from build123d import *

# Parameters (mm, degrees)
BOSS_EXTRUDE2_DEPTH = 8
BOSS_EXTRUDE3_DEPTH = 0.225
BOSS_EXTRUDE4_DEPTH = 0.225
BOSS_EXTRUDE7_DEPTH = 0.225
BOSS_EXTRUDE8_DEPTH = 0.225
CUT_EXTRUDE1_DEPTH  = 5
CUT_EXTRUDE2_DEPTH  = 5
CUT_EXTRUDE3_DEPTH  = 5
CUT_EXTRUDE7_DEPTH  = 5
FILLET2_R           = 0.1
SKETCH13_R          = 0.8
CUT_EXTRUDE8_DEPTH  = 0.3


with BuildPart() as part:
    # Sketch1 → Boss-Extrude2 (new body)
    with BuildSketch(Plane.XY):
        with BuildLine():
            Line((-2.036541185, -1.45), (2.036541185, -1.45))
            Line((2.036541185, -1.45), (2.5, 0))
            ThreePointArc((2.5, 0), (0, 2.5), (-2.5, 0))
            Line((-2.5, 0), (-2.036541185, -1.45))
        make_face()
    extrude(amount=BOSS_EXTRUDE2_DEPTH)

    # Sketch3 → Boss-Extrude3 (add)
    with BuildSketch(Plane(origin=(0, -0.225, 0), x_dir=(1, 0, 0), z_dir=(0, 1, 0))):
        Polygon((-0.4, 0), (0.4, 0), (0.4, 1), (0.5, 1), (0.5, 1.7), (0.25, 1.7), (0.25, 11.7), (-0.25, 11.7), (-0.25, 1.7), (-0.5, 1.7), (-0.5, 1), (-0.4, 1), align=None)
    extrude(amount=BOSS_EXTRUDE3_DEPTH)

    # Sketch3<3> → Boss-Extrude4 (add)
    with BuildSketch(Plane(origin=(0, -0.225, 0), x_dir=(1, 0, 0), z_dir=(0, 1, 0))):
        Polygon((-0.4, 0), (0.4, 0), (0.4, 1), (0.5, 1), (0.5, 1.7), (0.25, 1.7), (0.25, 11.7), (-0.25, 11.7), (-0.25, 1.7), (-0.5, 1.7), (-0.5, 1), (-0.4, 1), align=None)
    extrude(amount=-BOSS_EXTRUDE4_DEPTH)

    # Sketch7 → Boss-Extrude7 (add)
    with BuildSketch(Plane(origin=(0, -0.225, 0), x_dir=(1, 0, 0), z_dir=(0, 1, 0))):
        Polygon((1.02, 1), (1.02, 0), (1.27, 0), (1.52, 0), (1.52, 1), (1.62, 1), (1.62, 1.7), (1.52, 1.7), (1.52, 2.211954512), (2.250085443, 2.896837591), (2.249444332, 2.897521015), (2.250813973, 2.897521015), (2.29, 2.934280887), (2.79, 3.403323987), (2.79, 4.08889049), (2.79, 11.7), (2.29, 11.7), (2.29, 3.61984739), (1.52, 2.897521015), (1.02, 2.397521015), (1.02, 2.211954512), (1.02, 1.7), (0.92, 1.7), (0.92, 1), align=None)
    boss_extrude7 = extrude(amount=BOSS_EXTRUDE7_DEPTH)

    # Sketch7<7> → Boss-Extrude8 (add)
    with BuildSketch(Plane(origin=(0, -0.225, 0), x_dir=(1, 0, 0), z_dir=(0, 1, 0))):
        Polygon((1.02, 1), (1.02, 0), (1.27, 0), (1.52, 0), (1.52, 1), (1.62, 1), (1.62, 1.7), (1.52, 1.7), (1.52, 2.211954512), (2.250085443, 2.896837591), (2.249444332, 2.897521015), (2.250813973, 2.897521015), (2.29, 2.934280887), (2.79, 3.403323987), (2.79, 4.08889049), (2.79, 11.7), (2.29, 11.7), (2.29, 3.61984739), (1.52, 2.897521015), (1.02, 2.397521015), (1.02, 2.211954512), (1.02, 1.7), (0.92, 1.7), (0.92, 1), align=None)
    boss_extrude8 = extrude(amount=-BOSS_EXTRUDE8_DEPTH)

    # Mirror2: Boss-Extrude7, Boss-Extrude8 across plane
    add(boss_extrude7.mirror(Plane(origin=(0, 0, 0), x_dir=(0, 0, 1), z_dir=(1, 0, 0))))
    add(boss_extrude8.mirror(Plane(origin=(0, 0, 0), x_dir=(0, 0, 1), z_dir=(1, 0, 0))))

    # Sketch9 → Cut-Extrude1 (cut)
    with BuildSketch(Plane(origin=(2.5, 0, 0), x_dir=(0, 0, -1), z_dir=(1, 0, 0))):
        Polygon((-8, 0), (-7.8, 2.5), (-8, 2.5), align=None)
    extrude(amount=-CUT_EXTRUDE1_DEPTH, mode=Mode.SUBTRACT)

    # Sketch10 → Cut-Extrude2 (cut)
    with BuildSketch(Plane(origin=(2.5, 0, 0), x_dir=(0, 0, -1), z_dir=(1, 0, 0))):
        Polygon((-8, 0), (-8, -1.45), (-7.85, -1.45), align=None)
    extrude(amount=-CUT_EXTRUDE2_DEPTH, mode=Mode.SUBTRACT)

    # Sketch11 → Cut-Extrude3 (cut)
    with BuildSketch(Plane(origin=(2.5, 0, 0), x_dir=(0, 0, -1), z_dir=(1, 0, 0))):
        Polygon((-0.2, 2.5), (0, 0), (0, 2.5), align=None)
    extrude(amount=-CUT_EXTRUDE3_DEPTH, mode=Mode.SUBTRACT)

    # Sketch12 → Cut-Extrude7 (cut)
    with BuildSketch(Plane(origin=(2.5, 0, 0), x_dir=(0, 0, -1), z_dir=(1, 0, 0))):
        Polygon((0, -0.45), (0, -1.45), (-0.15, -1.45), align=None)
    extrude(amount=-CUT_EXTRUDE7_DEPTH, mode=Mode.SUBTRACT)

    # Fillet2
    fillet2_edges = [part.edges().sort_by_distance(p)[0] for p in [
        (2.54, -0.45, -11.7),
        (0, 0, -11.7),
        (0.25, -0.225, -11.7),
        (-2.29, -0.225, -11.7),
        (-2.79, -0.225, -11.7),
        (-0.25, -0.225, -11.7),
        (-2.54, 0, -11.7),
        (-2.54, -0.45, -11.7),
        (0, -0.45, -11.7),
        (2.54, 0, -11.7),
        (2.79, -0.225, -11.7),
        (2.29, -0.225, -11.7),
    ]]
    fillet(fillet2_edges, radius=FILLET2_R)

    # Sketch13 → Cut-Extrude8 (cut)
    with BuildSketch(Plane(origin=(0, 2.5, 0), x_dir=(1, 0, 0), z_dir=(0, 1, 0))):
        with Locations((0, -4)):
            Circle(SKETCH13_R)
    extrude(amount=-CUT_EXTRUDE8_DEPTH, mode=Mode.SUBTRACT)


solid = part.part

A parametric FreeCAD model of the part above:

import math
import FreeCAD as App
import Part
import Sketcher

V = App.Vector
Q = App.Units.Quantity


def edges_at(feature, points):
    """Names of the edges that pass closest to the given points."""
    edges = feature.Shape.Edges
    near = lambda p: min(range(len(edges)), key=lambda i: edges[i].distToShape(Part.Vertex(*p))[0])
    return sorted({f"Edge{near(p) + 1}" for p in points})


def add_polygon(sketch, points):
    """Adds a closed chain of lines whose ends are joined by coincident constraints."""
    first, n = sketch.GeometryCount, len(points)
    for a, b in zip(points, points[1:] + points[:1]):
        sketch.addGeometry(Part.LineSegment(App.Vector(*a, 0), App.Vector(*b, 0)), False)
    for i in range(n):
        sketch.addConstraint(Sketcher.Constraint("Coincident", first + i, 2, first + (i + 1) % n, 1))

doc = App.newDocument("Part")
params = doc.addObject("Spreadsheet::Sheet", "Params")
for row, (alias, value) in enumerate([
    ("sketch1_radius", "2.5 mm"),
    ("pad1_length", "8 mm"),
    ("sketch2_height", "1 mm"),
    ("sketch2_height2", "10 mm"),
    ("sketch2_width", "0.8 mm"),
    ("sketch2_width2", "0.1 mm"),
    ("sketch2_width3", "0.5 mm"),
    ("pad2_length", "0.225 mm"),
    ("sketch3_height", "1 mm"),
    ("sketch3_height2", "10 mm"),
    ("sketch3_width", "0.8 mm"),
    ("sketch3_width2", "0.1 mm"),
    ("sketch3_width3", "0.5 mm"),
    ("pad3_length", "0.225 mm"),
    ("sketch4_height", "1 mm"),
    ("sketch4_width", "0.5 mm"),
    ("sketch4_width2", "0.1 mm"),
    ("sketch4_height2", "0.7 mm"),
    ("pad4_length", "0.225 mm"),
    ("sketch5_height", "1 mm"),
    ("sketch5_width", "0.5 mm"),
    ("sketch5_width2", "0.1 mm"),
    ("sketch5_height2", "0.7 mm"),
    ("pad5_length", "0.225 mm"),
    ("sketch6_width", "2.5 mm"),
    ("sketch6_height", "0.2 mm"),
    ("pocket1_length", "5 mm"),
    ("sketch7_width", "1.45 mm"),
    ("sketch7_height", "0.15 mm"),
    ("pocket2_length", "5 mm"),
    ("sketch8_width", "2.5 mm"),
    ("sketch8_height", "0.2 mm"),
    ("pocket3_length", "5 mm"),
    ("sketch9_width", "1 mm"),
    ("sketch9_height", "0.15 mm"),
    ("pocket4_length", "5 mm"),
    ("fillet_radius", "0.1 mm"),
    ("sketch10_diameter", "1.6 mm"),
    ("pocket5_length", "0.3 mm"),
], start=1):
    params.set(f"A{row}", alias)
    params.set(f"B{row}", "=" + value)
    params.setAlias(f"B{row}", alias)

body = doc.addObject("PartDesign::Body", "Body")

sketch1 = body.newObject("Sketcher::SketchObject", "Sketch")
sketch1.AttachmentSupport = (doc.getObject("XY_Plane"), [""])
sketch1.MapMode = "FlatFace"
sketch1.addGeometry([
    Part.LineSegment(V(-2.036541, -1.45, 0), V(2.036541, -1.45, 0)),
    Part.LineSegment(V(2.036541, -1.45, 0), V(2.5, 0, 0)),
    Part.ArcOfCircle(Part.Circle(V(0, 0, 0), V(0, 0, 1), 2.5), math.radians(0), math.radians(180)),
    Part.LineSegment(V(-2.5, 0, 0), V(-2.036541, -1.45, 0)),
], False)
sketch1.addConstraint([
    Sketcher.Constraint("Coincident", 0, 2, 1, 1),
    Sketcher.Constraint("Coincident", 1, 2, 2, 1),
    Sketcher.Constraint("Coincident", 2, 2, 3, 1),
    Sketcher.Constraint("Coincident", 3, 2, 0, 1),
    Sketcher.Constraint("Horizontal", 0),
    Sketcher.Constraint("Coincident", 2, 3, -1, 1),
    Sketcher.Constraint("PointOnObject", 1, 2, -1),
    Sketcher.Constraint("PointOnObject", 2, 2, -1),
    Sketcher.Constraint("Equal", 1, 3),
    Sketcher.Constraint("Radius", 2, Q("2.5 mm")),
    Sketcher.Constraint("DistanceY", 0, 2, -1, 1, Q("1.45 mm")),
    Sketcher.Constraint("DistanceX", 0, 1, 0, 2, Q("4.073082 mm")),
])
sketch1.setExpression("Constraints[9]", "Params.sketch1_radius")
pad1 = body.newObject("PartDesign::Pad", "Pad")
pad1.Profile = sketch1
pad1.setExpression("Length", "Params.pad1_length")

sketch2 = body.newObject("Sketcher::SketchObject", "Sketch001")
sketch2.AttachmentSupport = (doc.getObject("XZ_Plane"), [""])
sketch2.MapMode = "FlatFace"
sketch2.AttachmentOffset = App.Placement(V(0, 0, 0.225), App.Rotation())
add_polygon(sketch2, [(-0.4, 0), (0.4, 0), (0.4, -1), (0.5, -1), (0.5, -1.7), (0.25, -1.7), (0.25, -11.7), (-0.25, -11.7), (-0.25, -1.7), (-0.5, -1.7), (-0.5, -1), (-0.4, -1)])
sketch2.addConstraint([
    Sketcher.Constraint("Horizontal", 0),
    Sketcher.Constraint("Vertical", 1),
    Sketcher.Constraint("Horizontal", 2),
    Sketcher.Constraint("Vertical", 3),
    Sketcher.Constraint("Horizontal", 4),
    Sketcher.Constraint("Vertical", 5),
    Sketcher.Constraint("Horizontal", 6),
    Sketcher.Constraint("Vertical", 7),
    Sketcher.Constraint("Horizontal", 8),
    Sketcher.Constraint("Vertical", 9),
    Sketcher.Constraint("Horizontal", 10),
    Sketcher.Constraint("Vertical", 11),
    Sketcher.Constraint("Symmetric", 0, 2, 11, 2, -1, 1),
    Sketcher.Constraint("Symmetric", 4, 2, 7, 2, -2),
    Sketcher.Constraint("Symmetric", 2, 2, 9, 2, -2),
    Sketcher.Constraint("DistanceY", 1, 2, 1, 1, Q("1 mm")),
    Sketcher.Constraint("DistanceY", 5, 2, 5, 1, Q("10 mm")),
    Sketcher.Constraint("DistanceX", 0, 1, 0, 2, Q("0.8 mm")),
    Sketcher.Constraint("DistanceX", 2, 1, 2, 2, Q("0.1 mm")),
    Sketcher.Constraint("DistanceX", 6, 2, 6, 1, Q("0.5 mm")),
    Sketcher.Constraint("DistanceY", 3, 2, 3, 1, Q("0.7 mm")),
])
sketch2.setExpression("Constraints[27]", "Params.sketch2_height")
sketch2.setExpression("Constraints[28]", "Params.sketch2_height2")
sketch2.setExpression("Constraints[29]", "Params.sketch2_width")
sketch2.setExpression("Constraints[30]", "Params.sketch2_width2")
sketch2.setExpression("Constraints[31]", "Params.sketch2_width3")
pad2 = body.newObject("PartDesign::Pad", "Pad001")
pad2.Profile = sketch2
pad2.setExpression("Length", "Params.pad2_length")
pad2.Reversed = True

sketch3 = body.newObject("Sketcher::SketchObject", "Sketch002")
sketch3.AttachmentSupport = (doc.getObject("XZ_Plane"), [""])
sketch3.MapMode = "FlatFace"
sketch3.AttachmentOffset = App.Placement(V(0, 0, 0.225), App.Rotation())
add_polygon(sketch3, [(-0.4, 0), (0.4, 0), (0.4, -1), (0.5, -1), (0.5, -1.7), (0.25, -1.7), (0.25, -11.7), (-0.25, -11.7), (-0.25, -1.7), (-0.5, -1.7), (-0.5, -1), (-0.4, -1)])
sketch3.addConstraint([
    Sketcher.Constraint("Horizontal", 0),
    Sketcher.Constraint("Vertical", 1),
    Sketcher.Constraint("Horizontal", 2),
    Sketcher.Constraint("Vertical", 3),
    Sketcher.Constraint("Horizontal", 4),
    Sketcher.Constraint("Vertical", 5),
    Sketcher.Constraint("Horizontal", 6),
    Sketcher.Constraint("Vertical", 7),
    Sketcher.Constraint("Horizontal", 8),
    Sketcher.Constraint("Vertical", 9),
    Sketcher.Constraint("Horizontal", 10),
    Sketcher.Constraint("Vertical", 11),
    Sketcher.Constraint("Symmetric", 0, 2, 11, 2, -1, 1),
    Sketcher.Constraint("Symmetric", 4, 2, 7, 2, -2),
    Sketcher.Constraint("Symmetric", 2, 2, 9, 2, -2),
    Sketcher.Constraint("DistanceY", 1, 2, 1, 1, Q("1 mm")),
    Sketcher.Constraint("DistanceY", 5, 2, 5, 1, Q("10 mm")),
    Sketcher.Constraint("DistanceX", 0, 1, 0, 2, Q("0.8 mm")),
    Sketcher.Constraint("DistanceX", 2, 1, 2, 2, Q("0.1 mm")),
    Sketcher.Constraint("DistanceX", 6, 2, 6, 1, Q("0.5 mm")),
    Sketcher.Constraint("DistanceY", 3, 2, 3, 1, Q("0.7 mm")),
])
sketch3.setExpression("Constraints[27]", "Params.sketch3_height")
sketch3.setExpression("Constraints[28]", "Params.sketch3_height2")
sketch3.setExpression("Constraints[29]", "Params.sketch3_width")
sketch3.setExpression("Constraints[30]", "Params.sketch3_width2")
sketch3.setExpression("Constraints[31]", "Params.sketch3_width3")
pad3 = body.newObject("PartDesign::Pad", "Pad002")
pad3.Profile = sketch3
pad3.setExpression("Length", "Params.pad3_length")

sketch4 = body.newObject("Sketcher::SketchObject", "Sketch003")
sketch4.AttachmentSupport = (doc.getObject("XZ_Plane"), [""])
sketch4.MapMode = "FlatFace"
sketch4.AttachmentOffset = App.Placement(V(0, 0, 0.225), App.Rotation())
add_polygon(sketch4, [(1.02, -1), (1.02, 0), (1.52, 0), (1.52, -1), (1.62, -1), (1.62, -1.7), (1.52, -1.7), (1.52, -2.211955), (2.250085, -2.896838), (2.249444, -2.897521), (2.250814, -2.897521), (2.29, -2.934281), (2.79, -3.403324), (2.79, -11.7), (2.29, -11.7), (2.29, -3.619847), (1.52, -2.897521), (1.02, -2.397521), (1.02, -1.7), (0.92, -1.7), (0.92, -1)])
sketch4.addConstraint([
    Sketcher.Constraint("Vertical", 0),
    Sketcher.Constraint("Horizontal", 1),
    Sketcher.Constraint("Vertical", 2),
    Sketcher.Constraint("Horizontal", 3),
    Sketcher.Constraint("Vertical", 4),
    Sketcher.Constraint("Horizontal", 5),
    Sketcher.Constraint("Vertical", 6),
    Sketcher.Constraint("Horizontal", 9),
    Sketcher.Constraint("Vertical", 12),
    Sketcher.Constraint("Horizontal", 13),
    Sketcher.Constraint("Vertical", 14),
    Sketcher.Constraint("Vertical", 17),
    Sketcher.Constraint("Horizontal", 18),
    Sketcher.Constraint("Vertical", 19),
    Sketcher.Constraint("Horizontal", 20),
    Sketcher.Constraint("PointOnObject", 0, 2, -1),
    Sketcher.Constraint("Perpendicular", 7, 8),
    Sketcher.Constraint("Perpendicular", 8, 10),
    Sketcher.Constraint("Parallel", 10, 11),
    Sketcher.Constraint("Parallel", 11, 15),
    Sketcher.Constraint("Horizontal", 9, 2, 15, 2),
    Sketcher.Constraint("Horizontal", 5, 2, 17, 2),
    Sketcher.Constraint("Horizontal", 3, 2, 19, 2),
    Sketcher.Constraint("Vertical", 2, 2, 5, 2),
    Sketcher.Constraint("Vertical", 10, 2, 13, 2),
    Sketcher.Constraint("Vertical", 6, 2, 15, 2),
    Sketcher.Constraint("Vertical", 0, 2, 16, 2),
    Sketcher.Constraint("Equal", 1, 13),
    Sketcher.Constraint("Equal", 5, 18),
    Sketcher.Constraint("DistanceY", 0, 1, 0, 2, Q("1 mm")),
    Sketcher.Constraint("Angle", 16, Q("135 deg")),
    Sketcher.Constraint("DistanceX", 1, 1, 1, 2, Q("0.5 mm")),
    Sketcher.Constraint("DistanceX", 3, 1, 3, 2, Q("0.1 mm")),
    Sketcher.Constraint("DistanceY", 4, 2, 4, 1, Q("0.7 mm")),
    Sketcher.Constraint("DistanceY", 12, 2, -1, 1, Q("11.7 mm")),
    Sketcher.Constraint("DistanceX", -1, 1, 0, 2, Q("1.02 mm")),
    Sketcher.Constraint("DistanceX", -1, 1, 10, 2, Q("2.29 mm")),
    Sketcher.Constraint("DistanceX", 9, 1, 9, 2, Q("0.00137 mm")),
    Sketcher.Constraint("DistanceY", 17, 1, 17, 2, Q("0.697521 mm")),
    Sketcher.Constraint("Distance", 10, Q("0.053729 mm")),
    Sketcher.Constraint("DistanceY", 6, 2, 6, 1, Q("0.511955 mm")),
    Sketcher.Constraint("DistanceY", 12, 2, 12, 1, Q("8.296676 mm")),
])
sketch4.setExpression("Constraints[50]", "Params.sketch4_height")
sketch4.setExpression("Constraints[52]", "Params.sketch4_width")
sketch4.setExpression("Constraints[53]", "Params.sketch4_width2")
sketch4.setExpression("Constraints[54]", "Params.sketch4_height2")
pad4 = body.newObject("PartDesign::Pad", "Pad003")
pad4.Profile = sketch4
pad4.setExpression("Length", "Params.pad4_length")
pad4.Reversed = True

sketch5 = body.newObject("Sketcher::SketchObject", "Sketch004")
sketch5.AttachmentSupport = (doc.getObject("XZ_Plane"), [""])
sketch5.MapMode = "FlatFace"
sketch5.AttachmentOffset = App.Placement(V(0, 0, 0.225), App.Rotation())
add_polygon(sketch5, [(1.02, -1), (1.02, 0), (1.52, 0), (1.52, -1), (1.62, -1), (1.62, -1.7), (1.52, -1.7), (1.52, -2.211955), (2.250085, -2.896838), (2.249444, -2.897521), (2.250814, -2.897521), (2.29, -2.934281), (2.79, -3.403324), (2.79, -11.7), (2.29, -11.7), (2.29, -3.619847), (1.52, -2.897521), (1.02, -2.397521), (1.02, -1.7), (0.92, -1.7), (0.92, -1)])
sketch5.addConstraint([
    Sketcher.Constraint("Vertical", 0),
    Sketcher.Constraint("Horizontal", 1),
    Sketcher.Constraint("Vertical", 2),
    Sketcher.Constraint("Horizontal", 3),
    Sketcher.Constraint("Vertical", 4),
    Sketcher.Constraint("Horizontal", 5),
    Sketcher.Constraint("Vertical", 6),
    Sketcher.Constraint("Horizontal", 9),
    Sketcher.Constraint("Vertical", 12),
    Sketcher.Constraint("Horizontal", 13),
    Sketcher.Constraint("Vertical", 14),
    Sketcher.Constraint("Vertical", 17),
    Sketcher.Constraint("Horizontal", 18),
    Sketcher.Constraint("Vertical", 19),
    Sketcher.Constraint("Horizontal", 20),
    Sketcher.Constraint("PointOnObject", 0, 2, -1),
    Sketcher.Constraint("Perpendicular", 7, 8),
    Sketcher.Constraint("Perpendicular", 8, 10),
    Sketcher.Constraint("Parallel", 10, 11),
    Sketcher.Constraint("Parallel", 11, 15),
    Sketcher.Constraint("Horizontal", 9, 2, 15, 2),
    Sketcher.Constraint("Horizontal", 5, 2, 17, 2),
    Sketcher.Constraint("Horizontal", 3, 2, 19, 2),
    Sketcher.Constraint("Vertical", 2, 2, 5, 2),
    Sketcher.Constraint("Vertical", 10, 2, 13, 2),
    Sketcher.Constraint("Vertical", 6, 2, 15, 2),
    Sketcher.Constraint("Vertical", 0, 2, 16, 2),
    Sketcher.Constraint("Equal", 1, 13),
    Sketcher.Constraint("Equal", 5, 18),
    Sketcher.Constraint("DistanceY", 0, 1, 0, 2, Q("1 mm")),
    Sketcher.Constraint("Angle", 16, Q("135 deg")),
    Sketcher.Constraint("DistanceX", 1, 1, 1, 2, Q("0.5 mm")),
    Sketcher.Constraint("DistanceX", 3, 1, 3, 2, Q("0.1 mm")),
    Sketcher.Constraint("DistanceY", 4, 2, 4, 1, Q("0.7 mm")),
    Sketcher.Constraint("DistanceY", 12, 2, -1, 1, Q("11.7 mm")),
    Sketcher.Constraint("DistanceX", -1, 1, 0, 2, Q("1.02 mm")),
    Sketcher.Constraint("DistanceX", -1, 1, 10, 2, Q("2.29 mm")),
    Sketcher.Constraint("DistanceX", 9, 1, 9, 2, Q("0.00137 mm")),
    Sketcher.Constraint("DistanceY", 17, 1, 17, 2, Q("0.697521 mm")),
    Sketcher.Constraint("Distance", 10, Q("0.053729 mm")),
    Sketcher.Constraint("DistanceY", 6, 2, 6, 1, Q("0.511955 mm")),
    Sketcher.Constraint("DistanceY", 12, 2, 12, 1, Q("8.296676 mm")),
])
sketch5.setExpression("Constraints[50]", "Params.sketch5_height")
sketch5.setExpression("Constraints[52]", "Params.sketch5_width")
sketch5.setExpression("Constraints[53]", "Params.sketch5_width2")
sketch5.setExpression("Constraints[54]", "Params.sketch5_height2")
pad5 = body.newObject("PartDesign::Pad", "Pad004")
pad5.Profile = sketch5
pad5.setExpression("Length", "Params.pad5_length")
doc.recompute()

mirrored = body.newObject("PartDesign::Mirrored", "Mirrored")
mirrored.Originals = [pad4, pad5]
mirrored.MirrorPlane = (doc.getObject("YZ_Plane"), [""])
body.Tip = mirrored

sketch6 = body.newObject("Sketcher::SketchObject", "Sketch005")
sketch6.AttachmentSupport = (doc.getObject("YZ_Plane"), [""])
sketch6.MapMode = "FlatFace"
sketch6.AttachmentOffset = App.Placement(V(0, 0, 2.5), App.Rotation())
add_polygon(sketch6, [(0, 8), (2.5, 7.8), (2.5, 8)])
sketch6.addConstraint([
    Sketcher.Constraint("Vertical", 1),
    Sketcher.Constraint("Horizontal", 2),
    Sketcher.Constraint("PointOnObject", 2, 2, -2),
    Sketcher.Constraint("DistanceX", 2, 2, 2, 1, Q("2.5 mm")),
    Sketcher.Constraint("DistanceY", 1, 1, 1, 2, Q("0.2 mm")),
    Sketcher.Constraint("DistanceY", -1, 1, 1, 2, Q("8 mm")),
])
sketch6.setExpression("Constraints[6]", "Params.sketch6_width")
sketch6.setExpression("Constraints[7]", "Params.sketch6_height")
pocket1 = body.newObject("PartDesign::Pocket", "Pocket")
pocket1.Profile = sketch6
pocket1.setExpression("Length", "Params.pocket1_length")

sketch7 = body.newObject("Sketcher::SketchObject", "Sketch006")
sketch7.AttachmentSupport = (doc.getObject("YZ_Plane"), [""])
sketch7.MapMode = "FlatFace"
sketch7.AttachmentOffset = App.Placement(V(0, 0, 2.5), App.Rotation())
add_polygon(sketch7, [(0, 8), (-1.45, 8), (-1.45, 7.85)])
sketch7.addConstraint([
    Sketcher.Constraint("Horizontal", 0),
    Sketcher.Constraint("Vertical", 1),
    Sketcher.Constraint("PointOnObject", 2, 2, -2),
    Sketcher.Constraint("DistanceY", -1, 1, 0, 2, Q("8 mm")),
    Sketcher.Constraint("DistanceX", 0, 2, 0, 1, Q("1.45 mm")),
    Sketcher.Constraint("DistanceY", 1, 2, 1, 1, Q("0.15 mm")),
])
sketch7.setExpression("Constraints[7]", "Params.sketch7_width")
sketch7.setExpression("Constraints[8]", "Params.sketch7_height")
pocket2 = body.newObject("PartDesign::Pocket", "Pocket001")
pocket2.Profile = sketch7
pocket2.setExpression("Length", "Params.pocket2_length")

sketch8 = body.newObject("Sketcher::SketchObject", "Sketch007")
sketch8.AttachmentSupport = (doc.getObject("YZ_Plane"), [""])
sketch8.MapMode = "FlatFace"
sketch8.AttachmentOffset = App.Placement(V(0, 0, 2.5), App.Rotation())
add_polygon(sketch8, [(2.5, 0.2), (0, 0), (2.5, 0)])
sketch8.addConstraint([
    Sketcher.Constraint("Horizontal", 1),
    Sketcher.Constraint("Vertical", 2),
    Sketcher.Constraint("Coincident", 0, 2, -1, 1),
    Sketcher.Constraint("DistanceX", 1, 1, 1, 2, Q("2.5 mm")),
    Sketcher.Constraint("DistanceY", 2, 1, 2, 2, Q("0.2 mm")),
])
sketch8.setExpression("Constraints[6]", "Params.sketch8_width")
sketch8.setExpression("Constraints[7]", "Params.sketch8_height")
pocket3 = body.newObject("PartDesign::Pocket", "Pocket002")
pocket3.Profile = sketch8
pocket3.setExpression("Length", "Params.pocket3_length")

sketch9 = body.newObject("Sketcher::SketchObject", "Sketch008")
sketch9.AttachmentSupport = (doc.getObject("YZ_Plane"), [""])
sketch9.MapMode = "FlatFace"
sketch9.AttachmentOffset = App.Placement(V(0, 0, 2.5), App.Rotation())
add_polygon(sketch9, [(-1.45, 0), (-0.45, 0), (-1.45, 0.15)])
sketch9.addConstraint([
    Sketcher.Constraint("Horizontal", 0),
    Sketcher.Constraint("Vertical", 2),
    Sketcher.Constraint("PointOnObject", 0, 2, -1),
    Sketcher.Constraint("DistanceX", 0, 1, 0, 2, Q("1 mm")),
    Sketcher.Constraint("DistanceY", 2, 2, 2, 1, Q("0.15 mm")),
    Sketcher.Constraint("DistanceX", 0, 2, -1, 1, Q("0.45 mm")),
])
sketch9.setExpression("Constraints[6]", "Params.sketch9_width")
sketch9.setExpression("Constraints[7]", "Params.sketch9_height")
pocket4 = body.newObject("PartDesign::Pocket", "Pocket003")
pocket4.Profile = sketch9
pocket4.setExpression("Length", "Params.pocket4_length")
doc.recompute()

fillet = body.newObject("PartDesign::Fillet", "Fillet")
fillet.Base = (pocket4, edges_at(pocket4, [
    (2.54, -0.45, -11.7),
    (0, 0, -11.7),
    (0.25, -0.225, -11.7),
    (-2.29, -0.225, -11.7),
    (-2.79, -0.225, -11.7),
    (-0.25, -0.225, -11.7),
    (-2.54, 0, -11.7),
    (-2.54, -0.45, -11.7),
    (0, -0.45, -11.7),
    (2.54, 0, -11.7),
    (2.79, -0.225, -11.7),
    (2.29, -0.225, -11.7),
]))
fillet.setExpression("Radius", "Params.fillet_radius")

sketch10 = body.newObject("Sketcher::SketchObject", "Sketch009")
sketch10.AttachmentSupport = (doc.getObject("XZ_Plane"), [""])
sketch10.MapMode = "FlatFace"
sketch10.AttachmentOffset = App.Placement(V(0, 0, -2.5), App.Rotation())
sketch10.addGeometry(Part.Circle(V(0, 4, 0), V(0, 0, 1), 0.8), False)
sketch10.addConstraint([
    Sketcher.Constraint("PointOnObject", 0, 3, -2),
    Sketcher.Constraint("Diameter", 0, Q("1.6 mm")),
    Sketcher.Constraint("DistanceY", -1, 1, 0, 3, Q("4 mm")),
])
sketch10.setExpression("Constraints[1]", "Params.sketch10_diameter")
pocket5 = body.newObject("PartDesign::Pocket", "Pocket004")
pocket5.Profile = sketch10
pocket5.setExpression("Length", "Params.pocket5_length")
pocket5.Reversed = True

doc.recompute()
